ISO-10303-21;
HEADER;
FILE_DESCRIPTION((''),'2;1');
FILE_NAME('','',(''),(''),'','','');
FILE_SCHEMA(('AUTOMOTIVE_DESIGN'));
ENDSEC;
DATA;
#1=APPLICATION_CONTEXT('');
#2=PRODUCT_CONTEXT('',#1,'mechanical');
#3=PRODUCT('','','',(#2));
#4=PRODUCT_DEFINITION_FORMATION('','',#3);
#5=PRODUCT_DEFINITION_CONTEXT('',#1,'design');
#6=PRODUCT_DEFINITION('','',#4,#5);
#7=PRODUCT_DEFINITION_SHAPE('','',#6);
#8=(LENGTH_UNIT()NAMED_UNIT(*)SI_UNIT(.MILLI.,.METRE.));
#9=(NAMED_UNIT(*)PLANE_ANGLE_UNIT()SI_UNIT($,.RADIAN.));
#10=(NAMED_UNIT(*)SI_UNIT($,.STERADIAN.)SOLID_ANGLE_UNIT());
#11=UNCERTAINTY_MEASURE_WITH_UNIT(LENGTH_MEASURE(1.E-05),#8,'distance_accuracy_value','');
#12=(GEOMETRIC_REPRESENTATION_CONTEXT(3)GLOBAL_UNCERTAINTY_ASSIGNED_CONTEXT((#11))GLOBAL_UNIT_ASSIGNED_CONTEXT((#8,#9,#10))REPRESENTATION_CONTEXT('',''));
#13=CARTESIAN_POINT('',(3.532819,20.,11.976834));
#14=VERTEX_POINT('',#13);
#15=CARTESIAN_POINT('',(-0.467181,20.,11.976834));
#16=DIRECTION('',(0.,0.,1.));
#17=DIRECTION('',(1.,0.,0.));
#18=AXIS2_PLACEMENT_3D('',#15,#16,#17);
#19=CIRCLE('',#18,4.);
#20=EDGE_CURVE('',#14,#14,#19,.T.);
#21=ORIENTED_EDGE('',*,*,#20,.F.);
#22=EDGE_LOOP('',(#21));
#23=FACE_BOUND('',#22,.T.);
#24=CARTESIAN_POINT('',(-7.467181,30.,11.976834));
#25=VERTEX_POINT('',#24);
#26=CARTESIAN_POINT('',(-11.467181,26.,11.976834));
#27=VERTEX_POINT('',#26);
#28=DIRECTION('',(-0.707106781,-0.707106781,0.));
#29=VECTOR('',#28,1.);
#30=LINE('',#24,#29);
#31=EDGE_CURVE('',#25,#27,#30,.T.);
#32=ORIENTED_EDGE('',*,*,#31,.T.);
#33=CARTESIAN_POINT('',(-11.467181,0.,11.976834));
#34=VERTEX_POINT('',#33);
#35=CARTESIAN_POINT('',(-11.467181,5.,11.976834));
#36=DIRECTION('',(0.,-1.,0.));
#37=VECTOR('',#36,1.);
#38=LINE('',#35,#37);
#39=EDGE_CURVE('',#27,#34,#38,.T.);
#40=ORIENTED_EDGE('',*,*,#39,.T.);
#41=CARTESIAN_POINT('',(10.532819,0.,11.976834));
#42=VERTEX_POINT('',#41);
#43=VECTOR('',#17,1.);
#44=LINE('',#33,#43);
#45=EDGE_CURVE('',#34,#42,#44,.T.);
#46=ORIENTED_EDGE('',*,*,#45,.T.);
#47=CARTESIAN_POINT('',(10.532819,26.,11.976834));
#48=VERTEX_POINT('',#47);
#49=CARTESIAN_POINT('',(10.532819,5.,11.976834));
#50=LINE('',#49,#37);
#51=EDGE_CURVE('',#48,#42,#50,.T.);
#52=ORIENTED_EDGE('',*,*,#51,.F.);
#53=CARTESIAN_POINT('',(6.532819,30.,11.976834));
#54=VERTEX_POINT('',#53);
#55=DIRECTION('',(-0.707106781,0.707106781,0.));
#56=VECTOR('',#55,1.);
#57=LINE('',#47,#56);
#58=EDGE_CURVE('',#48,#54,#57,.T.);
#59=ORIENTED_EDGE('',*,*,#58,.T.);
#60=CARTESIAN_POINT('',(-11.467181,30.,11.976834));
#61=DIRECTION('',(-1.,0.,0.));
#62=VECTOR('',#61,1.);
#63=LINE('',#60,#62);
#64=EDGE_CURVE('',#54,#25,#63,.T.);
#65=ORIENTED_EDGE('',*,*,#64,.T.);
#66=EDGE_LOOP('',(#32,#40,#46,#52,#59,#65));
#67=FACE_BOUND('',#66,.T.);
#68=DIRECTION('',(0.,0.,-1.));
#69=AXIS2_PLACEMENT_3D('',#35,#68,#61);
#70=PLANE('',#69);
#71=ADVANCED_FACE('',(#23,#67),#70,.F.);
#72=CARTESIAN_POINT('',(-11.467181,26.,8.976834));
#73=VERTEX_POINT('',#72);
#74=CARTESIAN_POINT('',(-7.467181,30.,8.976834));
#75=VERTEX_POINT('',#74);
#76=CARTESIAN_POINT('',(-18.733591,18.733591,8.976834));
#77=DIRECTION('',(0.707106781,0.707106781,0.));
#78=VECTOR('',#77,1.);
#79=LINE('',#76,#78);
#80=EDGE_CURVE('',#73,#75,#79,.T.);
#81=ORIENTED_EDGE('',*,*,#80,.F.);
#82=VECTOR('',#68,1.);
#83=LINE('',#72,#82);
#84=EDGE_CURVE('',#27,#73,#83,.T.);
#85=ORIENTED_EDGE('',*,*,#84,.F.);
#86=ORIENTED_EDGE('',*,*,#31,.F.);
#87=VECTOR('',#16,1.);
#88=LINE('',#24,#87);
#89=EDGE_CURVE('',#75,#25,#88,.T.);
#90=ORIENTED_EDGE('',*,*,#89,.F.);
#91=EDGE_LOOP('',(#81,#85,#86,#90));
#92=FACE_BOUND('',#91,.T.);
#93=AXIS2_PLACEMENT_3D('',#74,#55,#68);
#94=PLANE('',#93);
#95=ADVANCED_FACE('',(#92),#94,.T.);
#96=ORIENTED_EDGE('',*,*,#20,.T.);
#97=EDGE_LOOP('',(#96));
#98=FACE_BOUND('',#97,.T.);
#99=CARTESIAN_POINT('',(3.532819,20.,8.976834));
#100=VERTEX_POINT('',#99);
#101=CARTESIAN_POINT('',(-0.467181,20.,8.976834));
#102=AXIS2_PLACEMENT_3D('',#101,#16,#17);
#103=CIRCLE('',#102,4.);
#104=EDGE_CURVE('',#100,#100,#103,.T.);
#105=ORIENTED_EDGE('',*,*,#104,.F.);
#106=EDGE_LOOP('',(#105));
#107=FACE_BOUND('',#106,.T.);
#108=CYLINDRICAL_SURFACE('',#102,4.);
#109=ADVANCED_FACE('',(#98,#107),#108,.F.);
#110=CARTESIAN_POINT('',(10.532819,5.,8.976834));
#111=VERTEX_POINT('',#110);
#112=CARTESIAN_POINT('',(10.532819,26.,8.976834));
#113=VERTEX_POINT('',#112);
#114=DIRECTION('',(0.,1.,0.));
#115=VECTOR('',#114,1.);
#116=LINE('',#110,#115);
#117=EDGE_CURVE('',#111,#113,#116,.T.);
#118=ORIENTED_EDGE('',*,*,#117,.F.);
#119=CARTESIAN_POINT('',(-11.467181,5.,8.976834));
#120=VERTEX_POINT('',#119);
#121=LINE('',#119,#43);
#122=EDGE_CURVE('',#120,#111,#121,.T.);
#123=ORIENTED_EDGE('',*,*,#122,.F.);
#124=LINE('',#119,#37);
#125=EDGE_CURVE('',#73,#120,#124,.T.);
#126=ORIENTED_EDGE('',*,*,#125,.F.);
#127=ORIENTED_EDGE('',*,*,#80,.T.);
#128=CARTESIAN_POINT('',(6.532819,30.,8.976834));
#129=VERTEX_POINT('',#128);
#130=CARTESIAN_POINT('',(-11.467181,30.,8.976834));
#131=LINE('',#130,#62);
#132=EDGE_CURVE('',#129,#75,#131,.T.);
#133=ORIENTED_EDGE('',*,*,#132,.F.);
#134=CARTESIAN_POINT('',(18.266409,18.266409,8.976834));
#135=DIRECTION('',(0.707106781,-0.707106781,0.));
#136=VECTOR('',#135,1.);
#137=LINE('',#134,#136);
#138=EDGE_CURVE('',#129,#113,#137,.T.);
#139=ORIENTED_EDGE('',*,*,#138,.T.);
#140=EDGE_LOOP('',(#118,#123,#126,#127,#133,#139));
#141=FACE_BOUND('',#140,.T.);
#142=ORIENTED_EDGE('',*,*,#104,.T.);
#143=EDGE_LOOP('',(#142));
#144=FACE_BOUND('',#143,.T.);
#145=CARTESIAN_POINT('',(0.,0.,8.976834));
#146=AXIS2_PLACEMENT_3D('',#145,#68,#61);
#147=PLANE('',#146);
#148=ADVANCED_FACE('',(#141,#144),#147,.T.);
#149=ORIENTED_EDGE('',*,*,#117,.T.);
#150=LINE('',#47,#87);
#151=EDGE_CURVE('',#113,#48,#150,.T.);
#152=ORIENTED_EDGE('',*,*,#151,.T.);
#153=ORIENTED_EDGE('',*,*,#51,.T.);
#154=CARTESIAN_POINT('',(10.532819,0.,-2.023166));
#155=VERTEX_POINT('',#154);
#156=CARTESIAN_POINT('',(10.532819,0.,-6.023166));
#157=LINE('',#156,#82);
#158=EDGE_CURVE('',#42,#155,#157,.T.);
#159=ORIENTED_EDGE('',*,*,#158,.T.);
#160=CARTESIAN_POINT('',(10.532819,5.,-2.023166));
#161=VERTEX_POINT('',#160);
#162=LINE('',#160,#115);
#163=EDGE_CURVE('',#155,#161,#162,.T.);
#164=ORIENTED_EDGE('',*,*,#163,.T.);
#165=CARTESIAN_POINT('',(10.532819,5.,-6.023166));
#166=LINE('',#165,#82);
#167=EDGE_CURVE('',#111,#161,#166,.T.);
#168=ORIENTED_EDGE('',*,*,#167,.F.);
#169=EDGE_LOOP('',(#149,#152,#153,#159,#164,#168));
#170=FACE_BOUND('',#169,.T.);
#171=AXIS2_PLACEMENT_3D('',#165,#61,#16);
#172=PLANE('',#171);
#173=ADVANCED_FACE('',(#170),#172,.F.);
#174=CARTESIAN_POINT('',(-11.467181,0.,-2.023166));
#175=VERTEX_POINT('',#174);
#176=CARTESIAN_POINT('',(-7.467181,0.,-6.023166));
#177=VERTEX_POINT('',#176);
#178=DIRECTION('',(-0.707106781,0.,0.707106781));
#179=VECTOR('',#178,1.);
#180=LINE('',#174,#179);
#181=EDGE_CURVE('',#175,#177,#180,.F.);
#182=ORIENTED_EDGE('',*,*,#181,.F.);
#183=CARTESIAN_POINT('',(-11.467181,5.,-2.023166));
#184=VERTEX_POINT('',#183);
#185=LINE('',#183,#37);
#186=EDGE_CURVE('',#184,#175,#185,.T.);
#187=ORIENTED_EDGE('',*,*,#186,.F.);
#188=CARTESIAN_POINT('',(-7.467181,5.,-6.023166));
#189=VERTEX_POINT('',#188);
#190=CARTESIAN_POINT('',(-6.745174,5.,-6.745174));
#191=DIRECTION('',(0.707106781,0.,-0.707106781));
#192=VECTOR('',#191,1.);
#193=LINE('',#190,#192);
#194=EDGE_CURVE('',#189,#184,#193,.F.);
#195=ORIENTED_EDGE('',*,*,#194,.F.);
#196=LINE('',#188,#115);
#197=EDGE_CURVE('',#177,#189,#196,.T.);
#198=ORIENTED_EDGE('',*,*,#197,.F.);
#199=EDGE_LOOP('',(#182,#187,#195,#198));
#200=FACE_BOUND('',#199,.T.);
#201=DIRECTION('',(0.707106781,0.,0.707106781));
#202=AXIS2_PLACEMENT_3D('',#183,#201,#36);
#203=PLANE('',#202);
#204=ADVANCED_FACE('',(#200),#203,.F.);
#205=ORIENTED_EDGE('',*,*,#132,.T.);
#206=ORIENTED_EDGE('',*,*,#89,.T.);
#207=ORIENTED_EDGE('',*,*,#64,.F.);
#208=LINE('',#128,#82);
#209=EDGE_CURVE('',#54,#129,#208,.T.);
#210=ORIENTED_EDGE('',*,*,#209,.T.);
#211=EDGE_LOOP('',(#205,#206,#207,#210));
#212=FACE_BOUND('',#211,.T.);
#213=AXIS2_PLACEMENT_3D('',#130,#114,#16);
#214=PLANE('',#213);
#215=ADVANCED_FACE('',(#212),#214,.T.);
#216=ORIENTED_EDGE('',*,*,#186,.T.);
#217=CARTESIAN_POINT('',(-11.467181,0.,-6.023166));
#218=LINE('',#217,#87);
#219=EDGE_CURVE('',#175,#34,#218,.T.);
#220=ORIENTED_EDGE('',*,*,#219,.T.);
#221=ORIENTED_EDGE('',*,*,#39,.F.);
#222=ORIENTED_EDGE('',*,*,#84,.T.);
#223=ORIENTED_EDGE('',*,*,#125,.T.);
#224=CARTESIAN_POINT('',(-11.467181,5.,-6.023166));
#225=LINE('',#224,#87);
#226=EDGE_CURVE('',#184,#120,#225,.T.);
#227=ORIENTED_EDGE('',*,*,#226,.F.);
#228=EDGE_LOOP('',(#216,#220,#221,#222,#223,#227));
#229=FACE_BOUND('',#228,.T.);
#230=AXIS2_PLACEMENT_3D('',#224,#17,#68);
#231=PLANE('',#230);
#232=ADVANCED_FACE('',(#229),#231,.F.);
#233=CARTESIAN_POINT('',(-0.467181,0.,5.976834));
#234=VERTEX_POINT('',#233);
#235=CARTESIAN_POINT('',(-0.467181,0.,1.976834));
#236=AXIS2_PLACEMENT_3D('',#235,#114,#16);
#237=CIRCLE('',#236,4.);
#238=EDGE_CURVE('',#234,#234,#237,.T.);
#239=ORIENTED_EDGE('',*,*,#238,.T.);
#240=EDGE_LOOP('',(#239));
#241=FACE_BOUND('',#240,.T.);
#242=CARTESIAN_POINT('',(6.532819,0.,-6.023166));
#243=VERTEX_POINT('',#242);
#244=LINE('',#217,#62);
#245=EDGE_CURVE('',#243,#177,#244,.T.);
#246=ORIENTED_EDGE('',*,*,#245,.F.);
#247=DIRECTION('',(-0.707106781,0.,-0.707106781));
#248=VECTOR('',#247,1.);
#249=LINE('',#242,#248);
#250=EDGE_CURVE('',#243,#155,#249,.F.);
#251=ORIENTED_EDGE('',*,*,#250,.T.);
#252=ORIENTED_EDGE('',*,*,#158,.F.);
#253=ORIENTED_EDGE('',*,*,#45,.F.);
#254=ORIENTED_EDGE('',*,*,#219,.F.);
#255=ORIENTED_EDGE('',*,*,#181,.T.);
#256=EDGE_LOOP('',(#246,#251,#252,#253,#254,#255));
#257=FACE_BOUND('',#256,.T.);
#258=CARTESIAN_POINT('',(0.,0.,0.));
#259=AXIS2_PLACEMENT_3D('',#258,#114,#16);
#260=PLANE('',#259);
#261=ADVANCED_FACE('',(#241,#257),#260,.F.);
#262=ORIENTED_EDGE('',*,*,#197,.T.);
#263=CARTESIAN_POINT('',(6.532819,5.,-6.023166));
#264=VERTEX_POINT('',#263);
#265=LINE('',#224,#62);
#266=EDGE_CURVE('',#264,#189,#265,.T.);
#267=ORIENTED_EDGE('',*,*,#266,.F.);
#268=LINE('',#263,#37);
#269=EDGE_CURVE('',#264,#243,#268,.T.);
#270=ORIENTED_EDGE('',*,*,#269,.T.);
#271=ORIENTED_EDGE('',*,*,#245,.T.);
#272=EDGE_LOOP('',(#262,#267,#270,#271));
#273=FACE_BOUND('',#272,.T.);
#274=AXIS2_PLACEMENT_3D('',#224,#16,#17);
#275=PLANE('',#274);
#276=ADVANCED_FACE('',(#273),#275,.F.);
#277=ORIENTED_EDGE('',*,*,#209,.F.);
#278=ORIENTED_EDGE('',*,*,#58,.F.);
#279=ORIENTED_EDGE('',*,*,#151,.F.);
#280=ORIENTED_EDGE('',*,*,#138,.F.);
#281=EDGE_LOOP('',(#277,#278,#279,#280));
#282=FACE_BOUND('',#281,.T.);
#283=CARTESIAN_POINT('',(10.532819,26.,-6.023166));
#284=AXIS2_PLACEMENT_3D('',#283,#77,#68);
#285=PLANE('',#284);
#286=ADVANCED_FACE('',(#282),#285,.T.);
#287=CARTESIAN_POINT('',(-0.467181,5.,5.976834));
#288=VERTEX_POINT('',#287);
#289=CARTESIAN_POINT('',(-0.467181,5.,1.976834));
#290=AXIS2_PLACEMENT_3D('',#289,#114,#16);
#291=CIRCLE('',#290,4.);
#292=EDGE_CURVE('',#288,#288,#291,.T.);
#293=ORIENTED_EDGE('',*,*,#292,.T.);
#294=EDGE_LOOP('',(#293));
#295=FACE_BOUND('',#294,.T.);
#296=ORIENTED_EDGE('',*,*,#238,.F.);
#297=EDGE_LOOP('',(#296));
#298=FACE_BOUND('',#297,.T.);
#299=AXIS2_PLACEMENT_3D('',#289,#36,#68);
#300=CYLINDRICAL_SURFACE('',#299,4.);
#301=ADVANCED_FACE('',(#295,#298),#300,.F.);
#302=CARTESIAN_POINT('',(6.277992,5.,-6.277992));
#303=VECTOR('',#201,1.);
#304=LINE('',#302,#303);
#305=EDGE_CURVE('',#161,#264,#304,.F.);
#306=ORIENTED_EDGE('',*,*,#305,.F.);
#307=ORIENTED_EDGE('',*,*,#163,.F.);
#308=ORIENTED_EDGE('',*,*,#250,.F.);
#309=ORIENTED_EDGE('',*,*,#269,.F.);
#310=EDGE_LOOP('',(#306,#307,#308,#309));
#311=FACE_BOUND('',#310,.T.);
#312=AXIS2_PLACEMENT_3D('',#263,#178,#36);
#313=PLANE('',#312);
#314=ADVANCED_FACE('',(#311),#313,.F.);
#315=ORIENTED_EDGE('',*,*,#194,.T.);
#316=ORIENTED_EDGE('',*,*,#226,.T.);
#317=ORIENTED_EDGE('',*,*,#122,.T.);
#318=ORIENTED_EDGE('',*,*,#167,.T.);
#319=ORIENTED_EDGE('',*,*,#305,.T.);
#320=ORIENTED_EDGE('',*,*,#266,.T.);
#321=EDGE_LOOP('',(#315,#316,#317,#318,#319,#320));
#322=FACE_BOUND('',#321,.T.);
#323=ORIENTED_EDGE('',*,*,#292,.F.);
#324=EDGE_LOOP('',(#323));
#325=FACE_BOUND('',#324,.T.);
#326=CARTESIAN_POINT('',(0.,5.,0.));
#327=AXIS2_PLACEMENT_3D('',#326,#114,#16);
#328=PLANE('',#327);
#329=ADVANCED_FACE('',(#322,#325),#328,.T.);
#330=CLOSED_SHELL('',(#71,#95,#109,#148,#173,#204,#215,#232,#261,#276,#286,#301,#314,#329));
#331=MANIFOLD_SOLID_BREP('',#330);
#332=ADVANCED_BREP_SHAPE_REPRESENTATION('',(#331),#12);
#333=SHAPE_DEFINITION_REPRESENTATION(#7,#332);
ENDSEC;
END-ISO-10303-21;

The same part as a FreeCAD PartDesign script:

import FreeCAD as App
import Part
import Sketcher

V = App.Vector
Q = App.Units.Quantity


def edges_at(feature, points):
    """Names of the edges that pass closest to the given points."""
    edges = feature.Shape.Edges
    near = lambda p: min(range(len(edges)), key=lambda i: edges[i].distToShape(Part.Vertex(*p))[0])
    return sorted({f"Edge{near(p) + 1}" for p in points})


def add_polygon(sketch, points):
    """Adds a closed chain of lines whose ends are joined by coincident constraints."""
    first, n = sketch.GeometryCount, len(points)
    for a, b in zip(points, points[1:] + points[:1]):
        sketch.addGeometry(Part.LineSegment(App.Vector(*a, 0), App.Vector(*b, 0)), False)
    for i in range(n):
        sketch.addConstraint(Sketcher.Constraint("Coincident", first + i, 2, first + (i + 1) % n, 1))

doc = App.newDocument("Part")
body = doc.addObject("PartDesign::Body", "Body")

# Sketch on XZ plane
sketch1 = body.newObject("Sketcher::SketchObject", "Sketch")
sketch1.AttachmentSupport = (doc.getObject("XZ_Plane"), [""])
sketch1.MapMode = "FlatFace"
add_polygon(sketch1, [(-11.467181, -6.023166), (-11.467181, 11.976834), (10.532819, 11.976834), (10.532819, -6.023166)])  # lines 0-3
sketch1.addGeometry(Part.Circle(V(-0.467181, 1.976834, 0), V(0, 0, 1), 4), False)  # 4
sketch1.addConstraint([
    Sketcher.Constraint("Vertical", 0),
    Sketcher.Constraint("Horizontal", 1),
    Sketcher.Constraint("Vertical", 2),
    Sketcher.Constraint("Horizontal", 3),
    Sketcher.Constraint("Diameter", 4, Q("8 mm")),
    Sketcher.Constraint("DistanceX", 1, 1, 1, 2, Q("22 mm")),
    Sketcher.Constraint("DistanceY", 0, 1, 0, 2, Q("18 mm")),
    Sketcher.Constraint("DistanceX", 0, 2, 4, 3, Q("11 mm")),
    Sketcher.Constraint("DistanceY", 4, 3, 0, 2, Q("10 mm")),
    Sketcher.Constraint("DistanceX", 4, 3, -1, 1, Q("0.467181 mm")),
    Sketcher.Constraint("DistanceY", -1, 1, 4, 3, Q("1.976834 mm")),
])
pad1 = body.newObject("PartDesign::Pad", "Pad")
pad1.Profile = sketch1
pad1.Length = 5
pad1.Reversed = True

# Sketch on XY plane
sketch2 = body.newObject("Sketcher::SketchObject", "Sketch001")
sketch2.AttachmentSupport = (doc.getObject("XY_Plane"), [""])
sketch2.MapMode = "FlatFace"
sketch2.AttachmentOffset = App.Placement(V(0, 0, 11.976834), App.Rotation())
add_polygon(sketch2, [(-11.467181, 30), (-11.467181, 5), (10.532819, 5), (10.532819, 30)])  # lines 0-3
sketch2.addGeometry(Part.Circle(V(-0.467181, 20, 0), V(0, 0, 1), 4), False)  # 4
sketch2.addConstraint([
    Sketcher.Constraint("Vertical", 0),
    Sketcher.Constraint("Horizontal", 1),
    Sketcher.Constraint("Vertical", 2),
    Sketcher.Constraint("Horizontal", 3),
    Sketcher.Constraint("Diameter", 4, Q("8 mm")),
    Sketcher.Constraint("DistanceX", 1, 1, 1, 2, Q("22 mm")),
    Sketcher.Constraint("DistanceY", 0, 2, 0, 1, Q("25 mm")),
    Sketcher.Constraint("DistanceY", -1, 1, 4, 3, Q("20 mm")),
    Sketcher.Constraint("DistanceY", -1, 1, 0, 2, Q("5 mm")),
    Sketcher.Constraint("DistanceX", 0, 2, 4, 3, Q("11 mm")),
    Sketcher.Constraint("DistanceX", 4, 3, -1, 1, Q("0.467181 mm")),
])
pad2 = body.newObject("PartDesign::Pad", "Pad001")
pad2.Profile = sketch2
pad2.Length = 3
pad2.Reversed = True
doc.recompute()

chamfer = body.newObject("PartDesign::Chamfer", "Chamfer")
chamfer.Base = (pad2, edges_at(pad2, [
    (-11.467, 30, 10.477),
    (10.533, 30, 10.477),
    (-11.467, 2.5, -6.023),
    (10.533, 2.5, -6.023),
]))
chamfer.Size = 4

doc.recompute()
